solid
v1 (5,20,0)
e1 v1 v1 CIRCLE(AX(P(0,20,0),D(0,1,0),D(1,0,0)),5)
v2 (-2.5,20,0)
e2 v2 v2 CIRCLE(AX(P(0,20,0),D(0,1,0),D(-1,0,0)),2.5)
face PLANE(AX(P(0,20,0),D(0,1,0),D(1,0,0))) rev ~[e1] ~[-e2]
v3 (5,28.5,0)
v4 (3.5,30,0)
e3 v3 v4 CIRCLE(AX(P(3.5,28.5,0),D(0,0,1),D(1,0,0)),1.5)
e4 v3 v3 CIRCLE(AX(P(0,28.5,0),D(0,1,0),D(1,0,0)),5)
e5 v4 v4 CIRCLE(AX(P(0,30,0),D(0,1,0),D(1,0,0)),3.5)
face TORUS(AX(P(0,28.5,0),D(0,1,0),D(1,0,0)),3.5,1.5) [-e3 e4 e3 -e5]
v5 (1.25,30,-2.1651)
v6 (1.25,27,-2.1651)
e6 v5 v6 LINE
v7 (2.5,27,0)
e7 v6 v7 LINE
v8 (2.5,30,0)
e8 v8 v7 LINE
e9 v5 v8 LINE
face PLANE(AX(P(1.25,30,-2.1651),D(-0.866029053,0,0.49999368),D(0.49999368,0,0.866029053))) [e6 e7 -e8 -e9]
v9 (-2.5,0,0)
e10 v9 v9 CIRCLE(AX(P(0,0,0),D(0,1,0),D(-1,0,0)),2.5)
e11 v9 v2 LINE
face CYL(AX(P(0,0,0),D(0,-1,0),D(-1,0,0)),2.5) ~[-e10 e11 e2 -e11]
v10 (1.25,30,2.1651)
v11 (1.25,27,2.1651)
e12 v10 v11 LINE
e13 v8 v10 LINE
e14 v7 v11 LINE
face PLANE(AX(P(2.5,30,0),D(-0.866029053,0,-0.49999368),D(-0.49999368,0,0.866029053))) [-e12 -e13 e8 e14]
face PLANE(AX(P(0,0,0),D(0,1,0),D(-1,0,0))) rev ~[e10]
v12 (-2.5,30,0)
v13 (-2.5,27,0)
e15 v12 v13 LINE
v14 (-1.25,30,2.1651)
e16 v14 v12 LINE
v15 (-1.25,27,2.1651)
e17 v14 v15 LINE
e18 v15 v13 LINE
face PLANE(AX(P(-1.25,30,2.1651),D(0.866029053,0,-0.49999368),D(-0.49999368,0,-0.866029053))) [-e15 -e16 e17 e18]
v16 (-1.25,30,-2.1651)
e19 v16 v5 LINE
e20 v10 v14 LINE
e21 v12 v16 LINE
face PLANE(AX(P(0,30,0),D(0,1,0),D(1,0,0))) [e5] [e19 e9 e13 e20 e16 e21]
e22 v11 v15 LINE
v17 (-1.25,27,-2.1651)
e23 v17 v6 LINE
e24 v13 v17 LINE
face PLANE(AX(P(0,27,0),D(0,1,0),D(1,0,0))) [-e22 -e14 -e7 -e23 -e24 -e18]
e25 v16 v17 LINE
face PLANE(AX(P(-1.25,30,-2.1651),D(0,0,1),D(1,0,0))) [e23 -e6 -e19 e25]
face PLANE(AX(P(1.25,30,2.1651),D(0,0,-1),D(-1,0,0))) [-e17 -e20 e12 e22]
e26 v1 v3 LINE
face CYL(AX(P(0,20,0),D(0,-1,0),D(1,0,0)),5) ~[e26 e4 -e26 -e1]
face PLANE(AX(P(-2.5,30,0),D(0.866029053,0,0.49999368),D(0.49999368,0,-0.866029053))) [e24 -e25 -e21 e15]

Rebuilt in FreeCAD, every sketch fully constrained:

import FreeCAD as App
import Part
import Sketcher
Q = App.Units.Quantity


def edges_at(feature, points):
    """Names of the edges that pass closest to the given points."""
    edges = feature.Shape.Edges
    near = lambda p: min(range(len(edges)), key=lambda i: edges[i].distToShape(Part.Vertex(*p))[0])
    return sorted({f"Edge{near(p) + 1}" for p in points})


def add_polygon(sketch, points):
    """Adds a closed chain of lines whose ends are joined by coincident constraints."""
    first, n = sketch.GeometryCount, len(points)
    for a, b in zip(points, points[1:] + points[:1]):
        sketch.addGeometry(Part.LineSegment(App.Vector(*a, 0), App.Vector(*b, 0)), False)
    for i in range(n):
        sketch.addConstraint(Sketcher.Constraint("Coincident", first + i, 2, first + (i + 1) % n, 1))

doc = App.newDocument("Part")
body = doc.addObject("PartDesign::Body", "Body")

sketch1 = doc.addObject("Sketcher::SketchObject", "Sketch")
body.addObject(sketch1)
sketch1.AttachmentSupport = (doc.XZ_Plane, [""])
sketch1.MapMode = "FlatFace"
sketch1.addGeometry(Part.Circle(App.Vector(0, 0, 0), App.Vector(0, 0, 1), 2.5), False)
sketch1.addConstraint(Sketcher.Constraint("Coincident", 0, 3, -1, 1))
sketch1.addConstraint(Sketcher.Constraint("Diameter", 0, Q("5 mm")))
pad1 = doc.addObject("PartDesign::Pad", "Pad")
body.addObject(pad1)
pad1.Profile = sketch1
pad1.Length = 20
pad1.Reversed = True

sketch2 = doc.addObject("Sketcher::SketchObject", "Sketch001")
body.addObject(sketch2)
sketch2.AttachmentSupport = (doc.XZ_Plane, [""])
sketch2.MapMode = "FlatFace"
sketch2.AttachmentOffset = App.Placement(App.Vector(0, 0, -20), App.Rotation())
sketch2.addGeometry(Part.Circle(App.Vector(0, 0, 0), App.Vector(0, 0, 1), 5), False)
sketch2.addConstraint(Sketcher.Constraint("Coincident", 0, 3, -1, 1))
sketch2.addConstraint(Sketcher.Constraint("Diameter", 0, Q("10 mm")))
pad2 = doc.addObject("PartDesign::Pad", "Pad001")
body.addObject(pad2)
pad2.Profile = sketch2
pad2.Length = 10
pad2.Reversed = True
doc.recompute()

fillet = doc.addObject("PartDesign::Fillet", "Fillet")
body.addObject(fillet)
fillet.Base = (pad2, edges_at(pad2, [(-5, 30, 0)]))
fillet.Radius = 1.5

sketch3 = doc.addObject("Sketcher::SketchObject", "Sketch002")
body.addObject(sketch3)
sketch3.AttachmentSupport = (doc.XZ_Plane, [""])
sketch3.MapMode = "FlatFace"
sketch3.AttachmentOffset = App.Placement(App.Vector(0, 0, -30), App.Rotation())
add_polygon(sketch3, [(1.2, 2.2), (2.5, 0), (1.2, -2.2), (-1.2, -2.2), (-2.5, 0), (-1.2, 2.2)])
sketch3.addConstraint(Sketcher.Constraint("Horizontal", 2))
sketch3.addConstraint(Sketcher.Constraint("Horizontal", 5))
sketch3.addConstraint(Sketcher.Constraint("Symmetric", 0, 2, 3, 2, -1, 1))
sketch3.addConstraint(Sketcher.Constraint("Symmetric", 1, 2, 4, 2, -1, 1))
sketch3.addConstraint(Sketcher.Constraint("PointOnObject", 0, 2, -1))
sketch3.addConstraint(Sketcher.Constraint("Parallel", 0, 3))
sketch3.addConstraint(Sketcher.Constraint("Vertical", 2, 2, 4, 2))
sketch3.addConstraint(Sketcher.Constraint("Angle", 0, Q("-60.0004 deg")))
sketch3.addConstraint(Sketcher.Constraint("DistanceX", 2, 2, 2, 1, Q("2.5 mm")))
sketch3.addConstraint(Sketcher.Constraint("DistanceX", 3, 2, 0, 2, Q("5 mm")))
pocket1 = doc.addObject("PartDesign::Pocket", "Pocket")
body.addObject(pocket1)
pocket1.Profile = sketch3
pocket1.Length = 3
pocket1.Reversed = True

doc.recompute()
